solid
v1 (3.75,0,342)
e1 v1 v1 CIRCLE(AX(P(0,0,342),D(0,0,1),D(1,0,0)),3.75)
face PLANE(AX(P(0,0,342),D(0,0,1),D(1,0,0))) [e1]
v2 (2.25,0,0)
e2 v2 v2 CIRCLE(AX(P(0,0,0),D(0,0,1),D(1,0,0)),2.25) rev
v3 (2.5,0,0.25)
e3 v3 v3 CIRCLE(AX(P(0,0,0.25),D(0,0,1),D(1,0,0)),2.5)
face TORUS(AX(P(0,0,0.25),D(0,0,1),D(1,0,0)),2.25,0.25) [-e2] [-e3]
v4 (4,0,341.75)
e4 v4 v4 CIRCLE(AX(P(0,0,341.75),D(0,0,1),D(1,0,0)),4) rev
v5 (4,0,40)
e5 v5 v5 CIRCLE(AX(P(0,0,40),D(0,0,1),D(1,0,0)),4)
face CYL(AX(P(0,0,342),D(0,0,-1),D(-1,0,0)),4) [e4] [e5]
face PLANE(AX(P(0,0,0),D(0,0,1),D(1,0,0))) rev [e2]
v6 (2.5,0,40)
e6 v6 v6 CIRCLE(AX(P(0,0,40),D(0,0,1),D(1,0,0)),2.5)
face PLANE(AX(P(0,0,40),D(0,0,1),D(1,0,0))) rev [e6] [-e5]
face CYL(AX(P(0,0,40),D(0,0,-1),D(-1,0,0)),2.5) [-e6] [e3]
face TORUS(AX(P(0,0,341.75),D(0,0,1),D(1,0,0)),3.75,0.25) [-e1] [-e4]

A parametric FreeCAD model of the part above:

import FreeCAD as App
import Part
import Sketcher


def edges_at(feature, points):
    """Names of the edges that pass closest to the given points."""
    edges = feature.Shape.Edges
    near = lambda p: min(range(len(edges)), key=lambda i: edges[i].distToShape(Part.Vertex(*p))[0])
    return sorted({f"Edge{near(p) + 1}" for p in points})

doc = App.newDocument("Part")
body = doc.addObject("PartDesign::Body", "Body")

# Sketch on XY plane
sketch1 = doc.addObject("Sketcher::SketchObject", "Sketch")
body.addObject(sketch1)
sketch1.AttachmentSupport = (doc.XY_Plane, [""])
sketch1.MapMode = "FlatFace"
sketch1.addGeometry(Part.Circle(App.Vector(0, 0, 0), App.Vector(0, 0, 1), 2.5), False)
sketch1.addConstraint(Sketcher.Constraint("Coincident", 0, 3, -1, 1))
sketch1.addConstraint(Sketcher.Constraint("Diameter", 0, 5.0))
pad1 = doc.addObject("PartDesign::Pad", "Pad")
body.addObject(pad1)
pad1.Profile = sketch1
pad1.Length = 40

# Sketch on XY plane
sketch2 = doc.addObject("Sketcher::SketchObject", "Sketch001")
body.addObject(sketch2)
sketch2.AttachmentSupport = (doc.XY_Plane, [""])
sketch2.MapMode = "FlatFace"
sketch2.AttachmentOffset = App.Placement(App.Vector(0, 0, 40), App.Rotation())
sketch2.addGeometry(Part.Circle(App.Vector(0, 0, 0), App.Vector(0, 0, 1), 4), False)
sketch2.addConstraint(Sketcher.Constraint("Coincident", 0, 3, -1, 1))
sketch2.addConstraint(Sketcher.Constraint("Diameter", 0, 8.0))
pad2 = doc.addObject("PartDesign::Pad", "Pad001")
body.addObject(pad2)
pad2.Profile = sketch2
pad2.Length = 302
doc.recompute()

fillet = doc.addObject("PartDesign::Fillet", "Fillet")
body.addObject(fillet)
fillet.Base = (pad2, edges_at(pad2, [(-2.5, 0, 0), (-4, 0, 342)]))
fillet.Radius = 0.25

doc.recompute()
